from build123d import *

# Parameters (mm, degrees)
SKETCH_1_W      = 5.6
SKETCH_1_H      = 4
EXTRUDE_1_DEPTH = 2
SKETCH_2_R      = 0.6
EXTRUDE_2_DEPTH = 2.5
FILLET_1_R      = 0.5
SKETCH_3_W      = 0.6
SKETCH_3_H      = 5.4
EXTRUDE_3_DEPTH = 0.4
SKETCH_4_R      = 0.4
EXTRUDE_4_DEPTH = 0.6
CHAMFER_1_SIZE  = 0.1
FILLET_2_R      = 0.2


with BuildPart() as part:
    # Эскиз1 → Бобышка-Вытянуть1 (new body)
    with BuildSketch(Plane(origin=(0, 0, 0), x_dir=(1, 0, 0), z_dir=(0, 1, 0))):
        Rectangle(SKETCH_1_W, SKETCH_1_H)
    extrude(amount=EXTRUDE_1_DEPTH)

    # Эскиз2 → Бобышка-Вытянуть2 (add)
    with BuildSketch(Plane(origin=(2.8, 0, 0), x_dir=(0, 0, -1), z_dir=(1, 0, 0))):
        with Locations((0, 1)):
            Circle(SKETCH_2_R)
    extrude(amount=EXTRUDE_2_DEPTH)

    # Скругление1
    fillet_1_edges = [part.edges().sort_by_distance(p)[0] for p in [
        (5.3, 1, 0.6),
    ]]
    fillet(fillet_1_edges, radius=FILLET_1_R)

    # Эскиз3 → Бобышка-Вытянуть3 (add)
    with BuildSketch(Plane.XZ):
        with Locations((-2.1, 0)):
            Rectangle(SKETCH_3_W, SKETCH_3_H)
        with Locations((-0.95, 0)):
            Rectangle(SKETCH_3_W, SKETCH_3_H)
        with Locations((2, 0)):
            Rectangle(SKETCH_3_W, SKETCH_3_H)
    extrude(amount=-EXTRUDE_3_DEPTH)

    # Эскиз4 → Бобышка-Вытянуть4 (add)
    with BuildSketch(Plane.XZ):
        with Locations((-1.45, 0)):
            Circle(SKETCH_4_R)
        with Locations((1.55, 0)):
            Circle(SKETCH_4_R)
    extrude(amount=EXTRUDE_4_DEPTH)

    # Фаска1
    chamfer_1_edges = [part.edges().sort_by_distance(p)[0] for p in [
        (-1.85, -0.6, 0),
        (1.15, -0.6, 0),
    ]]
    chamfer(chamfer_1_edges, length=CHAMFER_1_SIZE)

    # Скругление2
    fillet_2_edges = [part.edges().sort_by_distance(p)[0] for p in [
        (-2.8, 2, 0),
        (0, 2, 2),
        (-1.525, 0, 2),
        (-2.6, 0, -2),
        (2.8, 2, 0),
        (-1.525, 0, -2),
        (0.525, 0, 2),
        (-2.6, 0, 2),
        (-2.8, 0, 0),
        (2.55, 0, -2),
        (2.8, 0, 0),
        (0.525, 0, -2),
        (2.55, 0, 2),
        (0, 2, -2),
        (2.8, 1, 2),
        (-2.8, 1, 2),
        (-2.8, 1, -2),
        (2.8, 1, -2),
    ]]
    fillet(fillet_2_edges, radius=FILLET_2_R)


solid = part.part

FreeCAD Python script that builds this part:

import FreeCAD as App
import Part
import Sketcher
from FreeCAD import Vector
Q = App.Units.Quantity


def edges_at(feature, points):
    """Names of the edges that pass closest to the given points."""
    edges = feature.Shape.Edges
    near = lambda p: min(range(len(edges)), key=lambda i: edges[i].distToShape(Part.Vertex(*p))[0])
    return sorted({f"Edge{near(p) + 1}" for p in points})


def add_polygon(sketch, points):
    """Adds a closed chain of lines whose ends are joined by coincident constraints."""
    first, n = sketch.GeometryCount, len(points)
    for a, b in zip(points, points[1:] + points[:1]):
        sketch.addGeometry(Part.LineSegment(App.Vector(*a, 0), App.Vector(*b, 0)), False)
    for i in range(n):
        sketch.addConstraint(Sketcher.Constraint("Coincident", first + i, 2, first + (i + 1) % n, 1))

doc = App.newDocument("Part")
body = doc.addObject("PartDesign::Body", "Body")

sketch1 = body.newObject("Sketcher::SketchObject", "Sketch")
sketch1.AttachmentSupport = (doc.getObject("XZ_Plane"), [""])
sketch1.MapMode = "FlatFace"
add_polygon(sketch1, [(-2.8, -2), (-2.8, 2), (2.8, 2), (2.8, -2)])
sketch1.addConstraint(Sketcher.Constraint("Vertical", 0))
sketch1.addConstraint(Sketcher.Constraint("Horizontal", 1))
sketch1.addConstraint(Sketcher.Constraint("Vertical", 2))
sketch1.addConstraint(Sketcher.Constraint("Horizontal", 3))
sketch1.addConstraint(Sketcher.Constraint("Symmetric", 0, 2, 2, 2, -1, 1))
sketch1.addConstraint(Sketcher.Constraint("DistanceY", 0, 1, 0, 2, Q("4 mm")))
sketch1.addConstraint(Sketcher.Constraint("DistanceX", 1, 1, 1, 2, Q("5.6 mm")))
pad1 = body.newObject("PartDesign::Pad", "Pad")
pad1.Profile = sketch1
pad1.Length = 2
pad1.Reversed = True

sketch2 = body.newObject("Sketcher::SketchObject", "Sketch001")
sketch2.AttachmentSupport = (doc.getObject("YZ_Plane"), [""])
sketch2.MapMode = "FlatFace"
sketch2.AttachmentOffset = App.Placement(Vector(0, 0, 2.8), App.Rotation())
sketch2.addGeometry(Part.Circle(Vector(1, 0, 0), Vector(0, 0, 1), 0.6), False)
sketch2.addConstraint(Sketcher.Constraint("PointOnObject", 0, 3, -1))
sketch2.addConstraint(Sketcher.Constraint("Diameter", 0, Q("1.2 mm")))
sketch2.addConstraint(Sketcher.Constraint("DistanceX", -1, 1, 0, 3, Q("1 mm")))
pad2 = body.newObject("PartDesign::Pad", "Pad001")
pad2.Profile = sketch2
pad2.Length = 2.5
doc.recompute()

fillet = body.newObject("PartDesign::Fillet", "Fillet")
fillet.Base = (pad2, edges_at(pad2, [(5.3, 1, 0.6)]))
fillet.Radius = 0.5

sketch3 = body.newObject("Sketcher::SketchObject", "Sketch002")
sketch3.AttachmentSupport = (doc.getObject("XZ_Plane"), [""])
sketch3.MapMode = "FlatFace"
add_polygon(sketch3, [(-2.4, 2.7), (-2.4, -2.7), (-1.8, -2.7), (-1.8, 2.7)])
add_polygon(sketch3, [(-1.25, 2.7), (-1.25, -2.7), (-0.65, -2.7), (-0.65, 2.7)])
add_polygon(sketch3, [(1.7, 2.7), (1.7, -2.7), (2.3, -2.7), (2.3, 2.7)])
sketch3.addConstraint(Sketcher.Constraint("Vertical", 0))
sketch3.addConstraint(Sketcher.Constraint("Horizontal", 1))
sketch3.addConstraint(Sketcher.Constraint("Vertical", 2))
sketch3.addConstraint(Sketcher.Constraint("Horizontal", 3))
sketch3.addConstraint(Sketcher.Constraint("Vertical", 4))
sketch3.addConstraint(Sketcher.Constraint("Horizontal", 5))
sketch3.addConstraint(Sketcher.Constraint("Vertical", 6))
sketch3.addConstraint(Sketcher.Constraint("Horizontal", 7))
sketch3.addConstraint(Sketcher.Constraint("Vertical", 8))
sketch3.addConstraint(Sketcher.Constraint("Horizontal", 9))
sketch3.addConstraint(Sketcher.Constraint("Vertical", 10))
sketch3.addConstraint(Sketcher.Constraint("Horizontal", 11))
sketch3.addConstraint(Sketcher.Constraint("Horizontal", 1, 2, 4, 2))
sketch3.addConstraint(Sketcher.Constraint("Horizontal", 3, 2, 6, 2))
sketch3.addConstraint(Sketcher.Constraint("Horizontal", 5, 2, 8, 2))
sketch3.addConstraint(Sketcher.Constraint("Horizontal", 7, 2, 10, 2))
sketch3.addConstraint(Sketcher.Constraint("Equal", 3, 5))
sketch3.addConstraint(Sketcher.Constraint("Equal", 7, 9))
sketch3.addConstraint(Sketcher.Constraint("DistanceX", 1, 1, 1, 2, Q("0.6 mm")))
sketch3.addConstraint(Sketcher.Constraint("DistanceY", 0, 2, 0, 1, Q("5.4 mm")))
sketch3.addConstraint(Sketcher.Constraint("DistanceX", 0, 2, -1, 1, Q("2.4 mm")))
sketch3.addConstraint(Sketcher.Constraint("DistanceY", 0, 2, -1, 1, Q("2.7 mm")))
sketch3.addConstraint(Sketcher.Constraint("DistanceX", -1, 1, 8, 2, Q("1.7 mm")))
sketch3.addConstraint(Sketcher.Constraint("DistanceX", 4, 2, -1, 1, Q("1.25 mm")))
pad3 = body.newObject("PartDesign::Pad", "Pad002")
pad3.Profile = sketch3
pad3.Length = 0.4
pad3.Reversed = True

sketch4 = body.newObject("Sketcher::SketchObject", "Sketch003")
sketch4.AttachmentSupport = (doc.getObject("XZ_Plane"), [""])
sketch4.MapMode = "FlatFace"
sketch4.addGeometry(Part.Circle(Vector(-1.45, 0, 0), Vector(0, 0, 1), 0.4), False)
sketch4.addGeometry(Part.Circle(Vector(1.55, 0, 0), Vector(0, 0, 1), 0.4), False)
sketch4.addConstraint(Sketcher.Constraint("Equal", 0, 1))
sketch4.addConstraint(Sketcher.Constraint("PointOnObject", 0, 3, -1))
sketch4.addConstraint(Sketcher.Constraint("PointOnObject", 1, 3, -1))
sketch4.addConstraint(Sketcher.Constraint("Diameter", 0, Q("0.8 mm")))
sketch4.addConstraint(Sketcher.Constraint("DistanceX", 0, 3, 1, 3, Q("3 mm")))
sketch4.addConstraint(Sketcher.Constraint("DistanceX", 0, 3, -1, 1, Q("1.45 mm")))
pad4 = body.newObject("PartDesign::Pad", "Pad003")
pad4.Profile = sketch4
pad4.Length = 0.6
doc.recompute()

chamfer = body.newObject("PartDesign::Chamfer", "Chamfer")
chamfer.Base = (pad4, edges_at(pad4, [(-1.85, -0.6, 0), (1.15, -0.6, 0)]))
chamfer.Size = 0.1
doc.recompute()

fillet2 = body.newObject("PartDesign::Fillet", "Fillet001")
fillet2.Base = (chamfer, edges_at(chamfer, [
    (-2.8, 2, 0),
    (0, 2, 2),
    (-1.525, 0, 2),
    (-2.6, 0, -2),
    (2.8, 2, 0),
    (-1.525, 0, -2),
    (0.525, 0, 2),
    (-2.6, 0, 2),
    (-2.8, 0, 0),
    (2.55, 0, -2),
    (2.8, 0, 0),
    (0.525, 0, -2),
    (2.55, 0, 2),
    (0, 2, -2),
    (2.8, 1, 2),
    (-2.8, 1, 2),
    (-2.8, 1, -2),
    (2.8, 1, -2),
]))
fillet2.Radius = 0.2

doc.recompute()
